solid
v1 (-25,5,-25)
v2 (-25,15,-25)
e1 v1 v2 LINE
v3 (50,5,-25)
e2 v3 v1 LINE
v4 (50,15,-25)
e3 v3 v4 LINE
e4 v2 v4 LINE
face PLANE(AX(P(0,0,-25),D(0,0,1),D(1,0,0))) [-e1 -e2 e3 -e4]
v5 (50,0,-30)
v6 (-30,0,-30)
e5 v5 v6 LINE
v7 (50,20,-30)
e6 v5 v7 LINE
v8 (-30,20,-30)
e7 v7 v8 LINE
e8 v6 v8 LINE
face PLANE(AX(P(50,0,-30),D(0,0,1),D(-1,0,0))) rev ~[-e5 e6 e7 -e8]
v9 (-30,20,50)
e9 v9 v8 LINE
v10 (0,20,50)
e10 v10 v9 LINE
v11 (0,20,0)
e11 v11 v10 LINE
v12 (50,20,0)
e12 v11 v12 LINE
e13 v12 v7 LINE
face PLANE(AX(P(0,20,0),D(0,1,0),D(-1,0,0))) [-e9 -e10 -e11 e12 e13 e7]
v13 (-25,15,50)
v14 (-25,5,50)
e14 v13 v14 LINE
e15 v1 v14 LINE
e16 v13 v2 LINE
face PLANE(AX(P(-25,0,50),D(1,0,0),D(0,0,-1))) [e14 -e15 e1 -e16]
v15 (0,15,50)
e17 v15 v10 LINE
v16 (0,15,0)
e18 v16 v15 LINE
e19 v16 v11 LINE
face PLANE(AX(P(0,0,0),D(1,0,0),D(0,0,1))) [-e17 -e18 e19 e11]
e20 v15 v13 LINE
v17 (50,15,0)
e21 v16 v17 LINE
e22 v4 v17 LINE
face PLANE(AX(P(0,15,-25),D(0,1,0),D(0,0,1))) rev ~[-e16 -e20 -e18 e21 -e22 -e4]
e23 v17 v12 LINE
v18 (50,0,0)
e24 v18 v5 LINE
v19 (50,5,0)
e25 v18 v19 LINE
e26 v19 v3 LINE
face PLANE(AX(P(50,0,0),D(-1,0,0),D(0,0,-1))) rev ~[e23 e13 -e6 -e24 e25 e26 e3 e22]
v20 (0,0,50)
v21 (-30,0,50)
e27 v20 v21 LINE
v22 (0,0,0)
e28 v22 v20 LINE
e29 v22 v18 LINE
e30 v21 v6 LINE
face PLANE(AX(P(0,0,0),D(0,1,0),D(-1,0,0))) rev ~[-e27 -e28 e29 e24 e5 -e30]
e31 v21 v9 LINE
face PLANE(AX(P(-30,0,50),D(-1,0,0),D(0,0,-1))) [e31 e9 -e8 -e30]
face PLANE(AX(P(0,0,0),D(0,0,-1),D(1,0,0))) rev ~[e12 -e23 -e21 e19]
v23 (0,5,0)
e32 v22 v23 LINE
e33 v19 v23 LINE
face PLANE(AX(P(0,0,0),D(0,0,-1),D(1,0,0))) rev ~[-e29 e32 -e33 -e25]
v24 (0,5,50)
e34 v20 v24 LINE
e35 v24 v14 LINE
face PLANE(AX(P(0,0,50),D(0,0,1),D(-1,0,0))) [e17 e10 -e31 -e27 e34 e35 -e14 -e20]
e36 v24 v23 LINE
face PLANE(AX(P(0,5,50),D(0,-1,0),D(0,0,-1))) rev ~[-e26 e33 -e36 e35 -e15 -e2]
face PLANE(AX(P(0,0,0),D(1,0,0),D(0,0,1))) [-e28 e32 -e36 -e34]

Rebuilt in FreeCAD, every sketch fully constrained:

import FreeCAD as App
import Part
import Sketcher
from FreeCAD import Vector

doc = App.newDocument("Part")
body = doc.addObject("PartDesign::Body", "Body")

sketch1 = body.newObject("Sketcher::SketchObject", "Sketch")
sketch1.AttachmentSupport = (doc.getObject("XZ_Plane"), [""])
sketch1.MapMode = "FlatFace"
sketch1.addGeometry(Part.LineSegment(Vector(0, 50, 0), Vector(0, 0, 0)), False)
sketch1.addGeometry(Part.LineSegment(Vector(0, 0, 0), Vector(50, 0, 0)), False)
sketch1.addGeometry(Part.LineSegment(Vector(50, 0, 0), Vector(50, -30, 0)), False)
sketch1.addGeometry(Part.LineSegment(Vector(50, -30, 0), Vector(-30, -30, 0)), False)
sketch1.addGeometry(Part.LineSegment(Vector(-30, -30, 0), Vector(-30, 50, 0)), False)
sketch1.addGeometry(Part.LineSegment(Vector(-30, 50, 0), Vector(0, 50, 0)), False)
sketch1.addConstraint(Sketcher.Constraint("Coincident", 0, 2, 1, 1))
sketch1.addConstraint(Sketcher.Constraint("Coincident", 1, 2, 2, 1))
sketch1.addConstraint(Sketcher.Constraint("Coincident", 2, 2, 3, 1))
sketch1.addConstraint(Sketcher.Constraint("Coincident", 3, 2, 4, 1))
sketch1.addConstraint(Sketcher.Constraint("Coincident", 4, 2, 5, 1))
sketch1.addConstraint(Sketcher.Constraint("Coincident", 5, 2, 0, 1))
sketch1.addConstraint(Sketcher.Constraint("Vertical", 0))
sketch1.addConstraint(Sketcher.Constraint("Horizontal", 1))
sketch1.addConstraint(Sketcher.Constraint("Vertical", 2))
sketch1.addConstraint(Sketcher.Constraint("Horizontal", 3))
sketch1.addConstraint(Sketcher.Constraint("Vertical", 4))
sketch1.addConstraint(Sketcher.Constraint("Horizontal", 5))
sketch1.addConstraint(Sketcher.Constraint("Coincident", 0, 2, -1, 1))
sketch1.addConstraint(Sketcher.Constraint("Equal", 1, 0))
sketch1.addConstraint(Sketcher.Constraint("Equal", 5, 2))
sketch1.addConstraint(Sketcher.Constraint("DistanceX", 1, 1, 1, 2, 50.0))
sketch1.addConstraint(Sketcher.Constraint("DistanceX", 5, 1, 5, 2, 30.0))
pad1 = body.newObject("PartDesign::Pad", "Pad")
pad1.Profile = sketch1
pad1.Length = 20
pad1.Reversed = True

sketch2 = body.newObject("Sketcher::SketchObject", "Sketch001")
sketch2.AttachmentSupport = (doc.getObject("YZ_Plane"), [""])
sketch2.MapMode = "FlatFace"
sketch2.addGeometry(Part.LineSegment(Vector(15, 50, 0), Vector(5, 50, 0)), False)
sketch2.addGeometry(Part.LineSegment(Vector(5, 50, 0), Vector(5, -25, 0)), False)
sketch2.addGeometry(Part.LineSegment(Vector(5, -25, 0), Vector(15, -25, 0)), False)
sketch2.addGeometry(Part.LineSegment(Vector(15, -25, 0), Vector(15, 50, 0)), False)
sketch2.addConstraint(Sketcher.Constraint("Coincident", 0, 2, 1, 1))
sketch2.addConstraint(Sketcher.Constraint("Coincident", 1, 2, 2, 1))
sketch2.addConstraint(Sketcher.Constraint("Coincident", 2, 2, 3, 1))
sketch2.addConstraint(Sketcher.Constraint("Coincident", 3, 2, 0, 1))
sketch2.addConstraint(Sketcher.Constraint("Horizontal", 0))
sketch2.addConstraint(Sketcher.Constraint("Vertical", 1))
sketch2.addConstraint(Sketcher.Constraint("Horizontal", 2))
sketch2.addConstraint(Sketcher.Constraint("Vertical", 3))
sketch2.addConstraint(Sketcher.Constraint("DistanceX", 0, 2, 0, 1, 10.0))
sketch2.addConstraint(Sketcher.Constraint("DistanceY", 1, 2, 1, 1, 75.0))
sketch2.addConstraint(Sketcher.Constraint("DistanceX", -1, 1, 0, 2, 5.0))
sketch2.addConstraint(Sketcher.Constraint("DistanceY", -1, 1, 0, 2, 50.0))
pocket1 = body.newObject("PartDesign::Pocket", "Pocket")
pocket1.Profile = sketch2
pocket1.Length = 25

sketch3 = body.newObject("Sketcher::SketchObject", "Sketch002")
sketch3.AttachmentSupport = (doc.getObject("XY_Plane"), [""])
sketch3.MapMode = "FlatFace"
sketch3.addGeometry(Part.LineSegment(Vector(75, 15, 0), Vector(-25, 15, 0)), False)
sketch3.addGeometry(Part.LineSegment(Vector(-25, 15, 0), Vector(-25, 5, 0)), False)
sketch3.addGeometry(Part.LineSegment(Vector(-25, 5, 0), Vector(75, 5, 0)), False)
sketch3.addGeometry(Part.LineSegment(Vector(75, 5, 0), Vector(75, 15, 0)), False)
sketch3.addConstraint(Sketcher.Constraint("Coincident", 0, 2, 1, 1))
sketch3.addConstraint(Sketcher.Constraint("Coincident", 1, 2, 2, 1))
sketch3.addConstraint(Sketcher.Constraint("Coincident", 2, 2, 3, 1))
sketch3.addConstraint(Sketcher.Constraint("Coincident", 3, 2, 0, 1))
sketch3.addConstraint(Sketcher.Constraint("Horizontal", 0))
sketch3.addConstraint(Sketcher.Constraint("Vertical", 1))
sketch3.addConstraint(Sketcher.Constraint("Horizontal", 2))
sketch3.addConstraint(Sketcher.Constraint("Vertical", 3))
sketch3.addConstraint(Sketcher.Constraint("DistanceX", 0, 2, 0, 1, 100.0))
sketch3.addConstraint(Sketcher.Constraint("DistanceY", 1, 2, 1, 1, 10.0))
sketch3.addConstraint(Sketcher.Constraint("DistanceX", 0, 2, -1, 1, 25.0))
sketch3.addConstraint(Sketcher.Constraint("DistanceY", -1, 1, 0, 2, 15.0))
pocket2 = body.newObject("PartDesign::Pocket", "Pocket001")
pocket2.Profile = sketch3
pocket2.Length = 25

doc.recompute()
